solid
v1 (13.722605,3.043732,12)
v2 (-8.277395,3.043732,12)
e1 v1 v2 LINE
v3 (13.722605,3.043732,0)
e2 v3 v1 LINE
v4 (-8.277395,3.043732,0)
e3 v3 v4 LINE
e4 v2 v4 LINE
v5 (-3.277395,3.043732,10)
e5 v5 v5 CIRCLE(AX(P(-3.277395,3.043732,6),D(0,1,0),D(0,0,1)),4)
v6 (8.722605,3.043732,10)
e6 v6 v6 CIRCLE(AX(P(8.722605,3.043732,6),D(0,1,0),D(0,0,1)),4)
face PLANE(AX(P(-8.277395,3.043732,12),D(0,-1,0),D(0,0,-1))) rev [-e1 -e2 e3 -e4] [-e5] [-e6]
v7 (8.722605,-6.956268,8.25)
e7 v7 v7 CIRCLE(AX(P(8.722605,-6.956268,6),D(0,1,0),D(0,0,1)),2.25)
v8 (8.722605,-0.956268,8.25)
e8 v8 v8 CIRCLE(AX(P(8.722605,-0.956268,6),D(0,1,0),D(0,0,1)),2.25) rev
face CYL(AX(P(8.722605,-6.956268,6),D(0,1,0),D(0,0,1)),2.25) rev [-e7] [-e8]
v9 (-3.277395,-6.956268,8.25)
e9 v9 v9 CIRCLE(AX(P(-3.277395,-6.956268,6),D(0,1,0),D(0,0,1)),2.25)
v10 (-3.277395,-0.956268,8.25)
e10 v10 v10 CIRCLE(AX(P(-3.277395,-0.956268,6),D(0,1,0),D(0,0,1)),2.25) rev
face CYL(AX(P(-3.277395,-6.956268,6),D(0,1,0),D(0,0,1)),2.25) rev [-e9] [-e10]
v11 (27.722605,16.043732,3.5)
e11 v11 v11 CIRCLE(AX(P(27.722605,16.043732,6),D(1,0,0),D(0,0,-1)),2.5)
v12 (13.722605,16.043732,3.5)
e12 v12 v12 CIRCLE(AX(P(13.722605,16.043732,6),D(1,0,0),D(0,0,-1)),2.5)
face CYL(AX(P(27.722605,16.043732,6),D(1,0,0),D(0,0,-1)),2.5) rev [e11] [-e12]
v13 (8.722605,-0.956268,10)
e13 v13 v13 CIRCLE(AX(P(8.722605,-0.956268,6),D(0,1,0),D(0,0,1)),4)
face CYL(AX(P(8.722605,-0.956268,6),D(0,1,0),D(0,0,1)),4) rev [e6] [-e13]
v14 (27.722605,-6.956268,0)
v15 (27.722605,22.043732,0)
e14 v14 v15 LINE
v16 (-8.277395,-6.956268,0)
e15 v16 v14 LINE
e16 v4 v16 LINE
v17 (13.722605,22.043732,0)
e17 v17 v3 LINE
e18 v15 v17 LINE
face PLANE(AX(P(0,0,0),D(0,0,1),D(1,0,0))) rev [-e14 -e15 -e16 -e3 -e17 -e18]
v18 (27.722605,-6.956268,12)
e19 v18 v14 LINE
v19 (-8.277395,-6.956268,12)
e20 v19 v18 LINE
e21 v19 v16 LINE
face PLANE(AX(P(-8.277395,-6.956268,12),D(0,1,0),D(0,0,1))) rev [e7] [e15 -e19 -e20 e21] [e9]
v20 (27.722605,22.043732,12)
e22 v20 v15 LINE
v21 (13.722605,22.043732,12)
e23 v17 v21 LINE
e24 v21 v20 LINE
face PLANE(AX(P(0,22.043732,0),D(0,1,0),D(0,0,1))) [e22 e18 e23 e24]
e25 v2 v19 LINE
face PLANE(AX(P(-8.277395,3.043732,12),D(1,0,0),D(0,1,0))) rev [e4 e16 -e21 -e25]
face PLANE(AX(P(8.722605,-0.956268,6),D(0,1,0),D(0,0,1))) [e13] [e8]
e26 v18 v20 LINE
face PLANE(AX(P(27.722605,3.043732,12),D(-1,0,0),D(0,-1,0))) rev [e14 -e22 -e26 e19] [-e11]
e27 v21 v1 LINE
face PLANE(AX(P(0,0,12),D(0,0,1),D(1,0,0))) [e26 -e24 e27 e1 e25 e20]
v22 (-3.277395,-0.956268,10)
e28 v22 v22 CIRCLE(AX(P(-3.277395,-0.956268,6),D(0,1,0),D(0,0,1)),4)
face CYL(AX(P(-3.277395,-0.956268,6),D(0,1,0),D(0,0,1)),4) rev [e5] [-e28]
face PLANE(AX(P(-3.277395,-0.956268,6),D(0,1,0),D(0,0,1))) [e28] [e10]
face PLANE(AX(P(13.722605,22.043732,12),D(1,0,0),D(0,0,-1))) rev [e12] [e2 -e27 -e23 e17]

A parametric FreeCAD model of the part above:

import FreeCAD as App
import Part
import Sketcher
from FreeCAD import Vector
Q = App.Units.Quantity

doc = App.newDocument("Part")
body = doc.addObject("PartDesign::Body", "Body")

sketch1 = body.newObject("Sketcher::SketchObject", "Sketch")
sketch1.AttachmentSupport = (doc.getObject("XY_Plane"), [""])
sketch1.MapMode = "FlatFace"
sketch1.addGeometry([
    Part.LineSegment(Vector(-8, 3, 0), Vector(-8, -7, 0)),
    Part.LineSegment(Vector(-8, -7, 0), Vector(28, -7, 0)),
    Part.LineSegment(Vector(28, -7, 0), Vector(28, 3, 0)),
    Part.LineSegment(Vector(28, 3, 0), Vector(-8, 3, 0)),
], False)
sketch1.addConstraint([
    Sketcher.Constraint("Coincident", 0, 2, 1, 1),
    Sketcher.Constraint("Coincident", 1, 2, 2, 1),
    Sketcher.Constraint("Coincident", 2, 2, 3, 1),
    Sketcher.Constraint("Coincident", 3, 2, 0, 1),
    Sketcher.Constraint("Vertical", 0),
    Sketcher.Constraint("Horizontal", 1),
    Sketcher.Constraint("Vertical", 2),
    Sketcher.Constraint("Horizontal", 3),
    Sketcher.Constraint("DistanceX", 1, 1, 1, 2, Q("36 mm")),
    Sketcher.Constraint("DistanceY", 0, 2, 0, 1, Q("10 mm")),
    Sketcher.Constraint("DistanceY", 0, 2, -1, 1, Q("6.956268 mm")),
    Sketcher.Constraint("DistanceX", 0, 2, -1, 1, Q("8.277395 mm")),
])
pad1 = body.newObject("PartDesign::Pad", "Pad")
pad1.Profile = sketch1
pad1.Length = 12

sketch2 = body.newObject("Sketcher::SketchObject", "Sketch001")
sketch2.AttachmentSupport = (doc.getObject("XZ_Plane"), [""])
sketch2.MapMode = "FlatFace"
sketch2.AttachmentOffset = App.Placement(Vector(0, 0, -3.043732), App.Rotation())
sketch2.addGeometry([
    Part.LineSegment(Vector(14, 0, 0), Vector(14, 12, 0)),
    Part.LineSegment(Vector(14, 12, 0), Vector(28, 12, 0)),
    Part.LineSegment(Vector(28, 12, 0), Vector(28, 0, 0)),
    Part.LineSegment(Vector(28, 0, 0), Vector(14, 0, 0)),
], False)
sketch2.addConstraint([
    Sketcher.Constraint("Coincident", 0, 2, 1, 1),
    Sketcher.Constraint("Coincident", 1, 2, 2, 1),
    Sketcher.Constraint("Coincident", 2, 2, 3, 1),
    Sketcher.Constraint("Coincident", 3, 2, 0, 1),
    Sketcher.Constraint("Vertical", 0),
    Sketcher.Constraint("Horizontal", 1),
    Sketcher.Constraint("Vertical", 2),
    Sketcher.Constraint("Horizontal", 3),
    Sketcher.Constraint("PointOnObject", 2, 2, -1),
    Sketcher.Constraint("DistanceX", 1, 1, 1, 2, Q("14 mm")),
    Sketcher.Constraint("DistanceY", 0, 1, 0, 2, Q("12 mm")),
    Sketcher.Constraint("DistanceX", -1, 1, 0, 2, Q("13.722605 mm")),
])
pad2 = body.newObject("PartDesign::Pad", "Pad001")
pad2.Profile = sketch2
pad2.Length = 19
pad2.Reversed = True

sketch3 = body.newObject("Sketcher::SketchObject", "Sketch002")
sketch3.AttachmentSupport = (doc.getObject("XZ_Plane"), [""])
sketch3.MapMode = "FlatFace"
sketch3.AttachmentOffset = App.Placement(Vector(0, 0, -3.043732), App.Rotation())
sketch3.addGeometry([
    Part.Circle(Vector(-3.3, 6, 0), Vector(0, 0, 1), 2.2),
    Part.Circle(Vector(8.7, 6, 0), Vector(0, 0, 1), 2.2),
], False)
sketch3.addConstraint([
    Sketcher.Constraint("Equal", 0, 1),
    Sketcher.Constraint("Horizontal", 0, 3, 1, 3),
    Sketcher.Constraint("Diameter", 0, Q("4.5 mm")),
    Sketcher.Constraint("DistanceY", -1, 1, 0, 3, Q("6 mm")),
    Sketcher.Constraint("DistanceX", 0, 3, 1, 3, Q("12 mm")),
    Sketcher.Constraint("DistanceX", 0, 3, -1, 1, Q("3.277395 mm")),
])
pocket1 = body.newObject("PartDesign::Pocket", "Pocket")
pocket1.Profile = sketch3
pocket1.Type = "ThroughAll"
pocket1.Reversed = True

sketch4 = body.newObject("Sketcher::SketchObject", "Sketch003")
sketch4.AttachmentSupport = (doc.getObject("XZ_Plane"), [""])
sketch4.MapMode = "FlatFace"
sketch4.AttachmentOffset = App.Placement(Vector(0, 0, -3.043732), App.Rotation())
sketch4.addGeometry([
    Part.Circle(Vector(-3.3, 6, 0), Vector(0, 0, 1), 4),
    Part.Circle(Vector(8.7, 6, 0), Vector(0, 0, 1), 4),
], False)
sketch4.addConstraint([
    Sketcher.Constraint("Equal", 0, 1),
    Sketcher.Constraint("Horizontal", 0, 3, 1, 3),
    Sketcher.Constraint("Diameter", 0, Q("8 mm")),
    Sketcher.Constraint("DistanceY", -1, 1, 0, 3, Q("6 mm")),
    Sketcher.Constraint("DistanceX", 0, 3, 1, 3, Q("12 mm")),
    Sketcher.Constraint("DistanceX", 0, 3, -1, 1, Q("3.277395 mm")),
])
pocket2 = body.newObject("PartDesign::Pocket", "Pocket001")
pocket2.Profile = sketch4
pocket2.Length = 4
pocket2.Reversed = True

sketch5 = body.newObject("Sketcher::SketchObject", "Sketch004")
sketch5.AttachmentSupport = (doc.getObject("YZ_Plane"), [""])
sketch5.MapMode = "FlatFace"
sketch5.AttachmentOffset = App.Placement(Vector(0, 0, 27.722605), App.Rotation())
sketch5.addGeometry(Part.Circle(Vector(16, 6, 0), Vector(0, 0, 1), 2.5), False)
sketch5.addConstraint([
    Sketcher.Constraint("Diameter", 0, Q("5 mm")),
    Sketcher.Constraint("DistanceY", -1, 1, 0, 3, Q("6 mm")),
    Sketcher.Constraint("DistanceX", -1, 1, 0, 3, Q("16.043732 mm")),
])
doc.recompute()
hole = body.newObject("PartDesign::Hole", "Hole")
hole.Profile = sketch5
hole.ThreadType = "None"
hole.Diameter = 5
hole.DepthType = "ThroughAll"

doc.recompute()
